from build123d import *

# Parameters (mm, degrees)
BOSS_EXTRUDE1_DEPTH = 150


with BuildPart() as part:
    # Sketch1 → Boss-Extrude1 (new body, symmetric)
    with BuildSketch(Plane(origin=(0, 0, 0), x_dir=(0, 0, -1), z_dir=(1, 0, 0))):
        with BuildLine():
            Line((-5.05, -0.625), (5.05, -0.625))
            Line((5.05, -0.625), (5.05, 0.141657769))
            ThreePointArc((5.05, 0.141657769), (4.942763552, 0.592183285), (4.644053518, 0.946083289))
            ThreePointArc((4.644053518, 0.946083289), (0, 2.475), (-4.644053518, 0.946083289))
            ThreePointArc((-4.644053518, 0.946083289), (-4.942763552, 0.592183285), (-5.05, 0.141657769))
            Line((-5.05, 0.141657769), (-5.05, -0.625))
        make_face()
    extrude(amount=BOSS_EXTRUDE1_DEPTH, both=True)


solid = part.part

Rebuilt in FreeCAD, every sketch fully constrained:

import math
import FreeCAD as App
import Part
import Sketcher

V = App.Vector

doc = App.newDocument("Part")
body = doc.addObject("PartDesign::Body", "Body")

sketch1 = body.newObject("Sketcher::SketchObject", "Sketch")
sketch1.AttachmentSupport = (doc.getObject("YZ_Plane"), [""])
sketch1.MapMode = "FlatFace"
sketch1.addGeometry([
    Part.LineSegment(V(-0.6, 5, 0), V(-0.6, -5, 0)),
    Part.LineSegment(V(-0.6, -5, 0), V(0.1, -5, 0)),
    Part.ArcOfCircle(Part.Circle(V(0.1, -4.1, 0), V(0, 0, 1), 1), math.radians(-90), math.radians(-36)),
    Part.ArcOfCircle(Part.Circle(V(-5.3, 0, 0), V(0, 0, 1), 7.8), math.radians(-36), math.radians(36)),
    Part.ArcOfCircle(Part.Circle(V(0.1, 4.1, 0), V(0, 0, 1), 1), math.radians(36), math.radians(90)),
    Part.LineSegment(V(0.1, 5, 0), V(-0.6, 5, 0)),
], False)
sketch1.addConstraint([
    Sketcher.Constraint("Coincident", 0, 2, 1, 1),
    Sketcher.Constraint("Tangent", 1, 2, 2, 1),
    Sketcher.Constraint("Tangent", 2, 2, 3, 1),
    Sketcher.Constraint("Tangent", 3, 2, 4, 1),
    Sketcher.Constraint("Tangent", 4, 2, 5, 1),
    Sketcher.Constraint("Coincident", 5, 2, 0, 1),
    Sketcher.Constraint("Vertical", 0),
    Sketcher.Constraint("Horizontal", 1),
    Sketcher.Constraint("Horizontal", 5),
    Sketcher.Constraint("Equal", 2, 4),
    Sketcher.Constraint("Symmetric", 2, 3, 4, 3, -1),
    Sketcher.Constraint("Radius", 2, 1.0),
    Sketcher.Constraint("DistanceY", 0, 2, 0, 1, 10.1),
    Sketcher.Constraint("DistanceX", 0, 2, -1, 1, 0.625),
    Sketcher.Constraint("Radius", 3, 7.817568),
    Sketcher.Constraint("DistanceX", 1, 1, 1, 2, 0.766658),
])
pad1 = body.newObject("PartDesign::Pad", "Pad")
pad1.Profile = sketch1
pad1.Length = 300
pad1.Midplane = True

doc.recompute()
